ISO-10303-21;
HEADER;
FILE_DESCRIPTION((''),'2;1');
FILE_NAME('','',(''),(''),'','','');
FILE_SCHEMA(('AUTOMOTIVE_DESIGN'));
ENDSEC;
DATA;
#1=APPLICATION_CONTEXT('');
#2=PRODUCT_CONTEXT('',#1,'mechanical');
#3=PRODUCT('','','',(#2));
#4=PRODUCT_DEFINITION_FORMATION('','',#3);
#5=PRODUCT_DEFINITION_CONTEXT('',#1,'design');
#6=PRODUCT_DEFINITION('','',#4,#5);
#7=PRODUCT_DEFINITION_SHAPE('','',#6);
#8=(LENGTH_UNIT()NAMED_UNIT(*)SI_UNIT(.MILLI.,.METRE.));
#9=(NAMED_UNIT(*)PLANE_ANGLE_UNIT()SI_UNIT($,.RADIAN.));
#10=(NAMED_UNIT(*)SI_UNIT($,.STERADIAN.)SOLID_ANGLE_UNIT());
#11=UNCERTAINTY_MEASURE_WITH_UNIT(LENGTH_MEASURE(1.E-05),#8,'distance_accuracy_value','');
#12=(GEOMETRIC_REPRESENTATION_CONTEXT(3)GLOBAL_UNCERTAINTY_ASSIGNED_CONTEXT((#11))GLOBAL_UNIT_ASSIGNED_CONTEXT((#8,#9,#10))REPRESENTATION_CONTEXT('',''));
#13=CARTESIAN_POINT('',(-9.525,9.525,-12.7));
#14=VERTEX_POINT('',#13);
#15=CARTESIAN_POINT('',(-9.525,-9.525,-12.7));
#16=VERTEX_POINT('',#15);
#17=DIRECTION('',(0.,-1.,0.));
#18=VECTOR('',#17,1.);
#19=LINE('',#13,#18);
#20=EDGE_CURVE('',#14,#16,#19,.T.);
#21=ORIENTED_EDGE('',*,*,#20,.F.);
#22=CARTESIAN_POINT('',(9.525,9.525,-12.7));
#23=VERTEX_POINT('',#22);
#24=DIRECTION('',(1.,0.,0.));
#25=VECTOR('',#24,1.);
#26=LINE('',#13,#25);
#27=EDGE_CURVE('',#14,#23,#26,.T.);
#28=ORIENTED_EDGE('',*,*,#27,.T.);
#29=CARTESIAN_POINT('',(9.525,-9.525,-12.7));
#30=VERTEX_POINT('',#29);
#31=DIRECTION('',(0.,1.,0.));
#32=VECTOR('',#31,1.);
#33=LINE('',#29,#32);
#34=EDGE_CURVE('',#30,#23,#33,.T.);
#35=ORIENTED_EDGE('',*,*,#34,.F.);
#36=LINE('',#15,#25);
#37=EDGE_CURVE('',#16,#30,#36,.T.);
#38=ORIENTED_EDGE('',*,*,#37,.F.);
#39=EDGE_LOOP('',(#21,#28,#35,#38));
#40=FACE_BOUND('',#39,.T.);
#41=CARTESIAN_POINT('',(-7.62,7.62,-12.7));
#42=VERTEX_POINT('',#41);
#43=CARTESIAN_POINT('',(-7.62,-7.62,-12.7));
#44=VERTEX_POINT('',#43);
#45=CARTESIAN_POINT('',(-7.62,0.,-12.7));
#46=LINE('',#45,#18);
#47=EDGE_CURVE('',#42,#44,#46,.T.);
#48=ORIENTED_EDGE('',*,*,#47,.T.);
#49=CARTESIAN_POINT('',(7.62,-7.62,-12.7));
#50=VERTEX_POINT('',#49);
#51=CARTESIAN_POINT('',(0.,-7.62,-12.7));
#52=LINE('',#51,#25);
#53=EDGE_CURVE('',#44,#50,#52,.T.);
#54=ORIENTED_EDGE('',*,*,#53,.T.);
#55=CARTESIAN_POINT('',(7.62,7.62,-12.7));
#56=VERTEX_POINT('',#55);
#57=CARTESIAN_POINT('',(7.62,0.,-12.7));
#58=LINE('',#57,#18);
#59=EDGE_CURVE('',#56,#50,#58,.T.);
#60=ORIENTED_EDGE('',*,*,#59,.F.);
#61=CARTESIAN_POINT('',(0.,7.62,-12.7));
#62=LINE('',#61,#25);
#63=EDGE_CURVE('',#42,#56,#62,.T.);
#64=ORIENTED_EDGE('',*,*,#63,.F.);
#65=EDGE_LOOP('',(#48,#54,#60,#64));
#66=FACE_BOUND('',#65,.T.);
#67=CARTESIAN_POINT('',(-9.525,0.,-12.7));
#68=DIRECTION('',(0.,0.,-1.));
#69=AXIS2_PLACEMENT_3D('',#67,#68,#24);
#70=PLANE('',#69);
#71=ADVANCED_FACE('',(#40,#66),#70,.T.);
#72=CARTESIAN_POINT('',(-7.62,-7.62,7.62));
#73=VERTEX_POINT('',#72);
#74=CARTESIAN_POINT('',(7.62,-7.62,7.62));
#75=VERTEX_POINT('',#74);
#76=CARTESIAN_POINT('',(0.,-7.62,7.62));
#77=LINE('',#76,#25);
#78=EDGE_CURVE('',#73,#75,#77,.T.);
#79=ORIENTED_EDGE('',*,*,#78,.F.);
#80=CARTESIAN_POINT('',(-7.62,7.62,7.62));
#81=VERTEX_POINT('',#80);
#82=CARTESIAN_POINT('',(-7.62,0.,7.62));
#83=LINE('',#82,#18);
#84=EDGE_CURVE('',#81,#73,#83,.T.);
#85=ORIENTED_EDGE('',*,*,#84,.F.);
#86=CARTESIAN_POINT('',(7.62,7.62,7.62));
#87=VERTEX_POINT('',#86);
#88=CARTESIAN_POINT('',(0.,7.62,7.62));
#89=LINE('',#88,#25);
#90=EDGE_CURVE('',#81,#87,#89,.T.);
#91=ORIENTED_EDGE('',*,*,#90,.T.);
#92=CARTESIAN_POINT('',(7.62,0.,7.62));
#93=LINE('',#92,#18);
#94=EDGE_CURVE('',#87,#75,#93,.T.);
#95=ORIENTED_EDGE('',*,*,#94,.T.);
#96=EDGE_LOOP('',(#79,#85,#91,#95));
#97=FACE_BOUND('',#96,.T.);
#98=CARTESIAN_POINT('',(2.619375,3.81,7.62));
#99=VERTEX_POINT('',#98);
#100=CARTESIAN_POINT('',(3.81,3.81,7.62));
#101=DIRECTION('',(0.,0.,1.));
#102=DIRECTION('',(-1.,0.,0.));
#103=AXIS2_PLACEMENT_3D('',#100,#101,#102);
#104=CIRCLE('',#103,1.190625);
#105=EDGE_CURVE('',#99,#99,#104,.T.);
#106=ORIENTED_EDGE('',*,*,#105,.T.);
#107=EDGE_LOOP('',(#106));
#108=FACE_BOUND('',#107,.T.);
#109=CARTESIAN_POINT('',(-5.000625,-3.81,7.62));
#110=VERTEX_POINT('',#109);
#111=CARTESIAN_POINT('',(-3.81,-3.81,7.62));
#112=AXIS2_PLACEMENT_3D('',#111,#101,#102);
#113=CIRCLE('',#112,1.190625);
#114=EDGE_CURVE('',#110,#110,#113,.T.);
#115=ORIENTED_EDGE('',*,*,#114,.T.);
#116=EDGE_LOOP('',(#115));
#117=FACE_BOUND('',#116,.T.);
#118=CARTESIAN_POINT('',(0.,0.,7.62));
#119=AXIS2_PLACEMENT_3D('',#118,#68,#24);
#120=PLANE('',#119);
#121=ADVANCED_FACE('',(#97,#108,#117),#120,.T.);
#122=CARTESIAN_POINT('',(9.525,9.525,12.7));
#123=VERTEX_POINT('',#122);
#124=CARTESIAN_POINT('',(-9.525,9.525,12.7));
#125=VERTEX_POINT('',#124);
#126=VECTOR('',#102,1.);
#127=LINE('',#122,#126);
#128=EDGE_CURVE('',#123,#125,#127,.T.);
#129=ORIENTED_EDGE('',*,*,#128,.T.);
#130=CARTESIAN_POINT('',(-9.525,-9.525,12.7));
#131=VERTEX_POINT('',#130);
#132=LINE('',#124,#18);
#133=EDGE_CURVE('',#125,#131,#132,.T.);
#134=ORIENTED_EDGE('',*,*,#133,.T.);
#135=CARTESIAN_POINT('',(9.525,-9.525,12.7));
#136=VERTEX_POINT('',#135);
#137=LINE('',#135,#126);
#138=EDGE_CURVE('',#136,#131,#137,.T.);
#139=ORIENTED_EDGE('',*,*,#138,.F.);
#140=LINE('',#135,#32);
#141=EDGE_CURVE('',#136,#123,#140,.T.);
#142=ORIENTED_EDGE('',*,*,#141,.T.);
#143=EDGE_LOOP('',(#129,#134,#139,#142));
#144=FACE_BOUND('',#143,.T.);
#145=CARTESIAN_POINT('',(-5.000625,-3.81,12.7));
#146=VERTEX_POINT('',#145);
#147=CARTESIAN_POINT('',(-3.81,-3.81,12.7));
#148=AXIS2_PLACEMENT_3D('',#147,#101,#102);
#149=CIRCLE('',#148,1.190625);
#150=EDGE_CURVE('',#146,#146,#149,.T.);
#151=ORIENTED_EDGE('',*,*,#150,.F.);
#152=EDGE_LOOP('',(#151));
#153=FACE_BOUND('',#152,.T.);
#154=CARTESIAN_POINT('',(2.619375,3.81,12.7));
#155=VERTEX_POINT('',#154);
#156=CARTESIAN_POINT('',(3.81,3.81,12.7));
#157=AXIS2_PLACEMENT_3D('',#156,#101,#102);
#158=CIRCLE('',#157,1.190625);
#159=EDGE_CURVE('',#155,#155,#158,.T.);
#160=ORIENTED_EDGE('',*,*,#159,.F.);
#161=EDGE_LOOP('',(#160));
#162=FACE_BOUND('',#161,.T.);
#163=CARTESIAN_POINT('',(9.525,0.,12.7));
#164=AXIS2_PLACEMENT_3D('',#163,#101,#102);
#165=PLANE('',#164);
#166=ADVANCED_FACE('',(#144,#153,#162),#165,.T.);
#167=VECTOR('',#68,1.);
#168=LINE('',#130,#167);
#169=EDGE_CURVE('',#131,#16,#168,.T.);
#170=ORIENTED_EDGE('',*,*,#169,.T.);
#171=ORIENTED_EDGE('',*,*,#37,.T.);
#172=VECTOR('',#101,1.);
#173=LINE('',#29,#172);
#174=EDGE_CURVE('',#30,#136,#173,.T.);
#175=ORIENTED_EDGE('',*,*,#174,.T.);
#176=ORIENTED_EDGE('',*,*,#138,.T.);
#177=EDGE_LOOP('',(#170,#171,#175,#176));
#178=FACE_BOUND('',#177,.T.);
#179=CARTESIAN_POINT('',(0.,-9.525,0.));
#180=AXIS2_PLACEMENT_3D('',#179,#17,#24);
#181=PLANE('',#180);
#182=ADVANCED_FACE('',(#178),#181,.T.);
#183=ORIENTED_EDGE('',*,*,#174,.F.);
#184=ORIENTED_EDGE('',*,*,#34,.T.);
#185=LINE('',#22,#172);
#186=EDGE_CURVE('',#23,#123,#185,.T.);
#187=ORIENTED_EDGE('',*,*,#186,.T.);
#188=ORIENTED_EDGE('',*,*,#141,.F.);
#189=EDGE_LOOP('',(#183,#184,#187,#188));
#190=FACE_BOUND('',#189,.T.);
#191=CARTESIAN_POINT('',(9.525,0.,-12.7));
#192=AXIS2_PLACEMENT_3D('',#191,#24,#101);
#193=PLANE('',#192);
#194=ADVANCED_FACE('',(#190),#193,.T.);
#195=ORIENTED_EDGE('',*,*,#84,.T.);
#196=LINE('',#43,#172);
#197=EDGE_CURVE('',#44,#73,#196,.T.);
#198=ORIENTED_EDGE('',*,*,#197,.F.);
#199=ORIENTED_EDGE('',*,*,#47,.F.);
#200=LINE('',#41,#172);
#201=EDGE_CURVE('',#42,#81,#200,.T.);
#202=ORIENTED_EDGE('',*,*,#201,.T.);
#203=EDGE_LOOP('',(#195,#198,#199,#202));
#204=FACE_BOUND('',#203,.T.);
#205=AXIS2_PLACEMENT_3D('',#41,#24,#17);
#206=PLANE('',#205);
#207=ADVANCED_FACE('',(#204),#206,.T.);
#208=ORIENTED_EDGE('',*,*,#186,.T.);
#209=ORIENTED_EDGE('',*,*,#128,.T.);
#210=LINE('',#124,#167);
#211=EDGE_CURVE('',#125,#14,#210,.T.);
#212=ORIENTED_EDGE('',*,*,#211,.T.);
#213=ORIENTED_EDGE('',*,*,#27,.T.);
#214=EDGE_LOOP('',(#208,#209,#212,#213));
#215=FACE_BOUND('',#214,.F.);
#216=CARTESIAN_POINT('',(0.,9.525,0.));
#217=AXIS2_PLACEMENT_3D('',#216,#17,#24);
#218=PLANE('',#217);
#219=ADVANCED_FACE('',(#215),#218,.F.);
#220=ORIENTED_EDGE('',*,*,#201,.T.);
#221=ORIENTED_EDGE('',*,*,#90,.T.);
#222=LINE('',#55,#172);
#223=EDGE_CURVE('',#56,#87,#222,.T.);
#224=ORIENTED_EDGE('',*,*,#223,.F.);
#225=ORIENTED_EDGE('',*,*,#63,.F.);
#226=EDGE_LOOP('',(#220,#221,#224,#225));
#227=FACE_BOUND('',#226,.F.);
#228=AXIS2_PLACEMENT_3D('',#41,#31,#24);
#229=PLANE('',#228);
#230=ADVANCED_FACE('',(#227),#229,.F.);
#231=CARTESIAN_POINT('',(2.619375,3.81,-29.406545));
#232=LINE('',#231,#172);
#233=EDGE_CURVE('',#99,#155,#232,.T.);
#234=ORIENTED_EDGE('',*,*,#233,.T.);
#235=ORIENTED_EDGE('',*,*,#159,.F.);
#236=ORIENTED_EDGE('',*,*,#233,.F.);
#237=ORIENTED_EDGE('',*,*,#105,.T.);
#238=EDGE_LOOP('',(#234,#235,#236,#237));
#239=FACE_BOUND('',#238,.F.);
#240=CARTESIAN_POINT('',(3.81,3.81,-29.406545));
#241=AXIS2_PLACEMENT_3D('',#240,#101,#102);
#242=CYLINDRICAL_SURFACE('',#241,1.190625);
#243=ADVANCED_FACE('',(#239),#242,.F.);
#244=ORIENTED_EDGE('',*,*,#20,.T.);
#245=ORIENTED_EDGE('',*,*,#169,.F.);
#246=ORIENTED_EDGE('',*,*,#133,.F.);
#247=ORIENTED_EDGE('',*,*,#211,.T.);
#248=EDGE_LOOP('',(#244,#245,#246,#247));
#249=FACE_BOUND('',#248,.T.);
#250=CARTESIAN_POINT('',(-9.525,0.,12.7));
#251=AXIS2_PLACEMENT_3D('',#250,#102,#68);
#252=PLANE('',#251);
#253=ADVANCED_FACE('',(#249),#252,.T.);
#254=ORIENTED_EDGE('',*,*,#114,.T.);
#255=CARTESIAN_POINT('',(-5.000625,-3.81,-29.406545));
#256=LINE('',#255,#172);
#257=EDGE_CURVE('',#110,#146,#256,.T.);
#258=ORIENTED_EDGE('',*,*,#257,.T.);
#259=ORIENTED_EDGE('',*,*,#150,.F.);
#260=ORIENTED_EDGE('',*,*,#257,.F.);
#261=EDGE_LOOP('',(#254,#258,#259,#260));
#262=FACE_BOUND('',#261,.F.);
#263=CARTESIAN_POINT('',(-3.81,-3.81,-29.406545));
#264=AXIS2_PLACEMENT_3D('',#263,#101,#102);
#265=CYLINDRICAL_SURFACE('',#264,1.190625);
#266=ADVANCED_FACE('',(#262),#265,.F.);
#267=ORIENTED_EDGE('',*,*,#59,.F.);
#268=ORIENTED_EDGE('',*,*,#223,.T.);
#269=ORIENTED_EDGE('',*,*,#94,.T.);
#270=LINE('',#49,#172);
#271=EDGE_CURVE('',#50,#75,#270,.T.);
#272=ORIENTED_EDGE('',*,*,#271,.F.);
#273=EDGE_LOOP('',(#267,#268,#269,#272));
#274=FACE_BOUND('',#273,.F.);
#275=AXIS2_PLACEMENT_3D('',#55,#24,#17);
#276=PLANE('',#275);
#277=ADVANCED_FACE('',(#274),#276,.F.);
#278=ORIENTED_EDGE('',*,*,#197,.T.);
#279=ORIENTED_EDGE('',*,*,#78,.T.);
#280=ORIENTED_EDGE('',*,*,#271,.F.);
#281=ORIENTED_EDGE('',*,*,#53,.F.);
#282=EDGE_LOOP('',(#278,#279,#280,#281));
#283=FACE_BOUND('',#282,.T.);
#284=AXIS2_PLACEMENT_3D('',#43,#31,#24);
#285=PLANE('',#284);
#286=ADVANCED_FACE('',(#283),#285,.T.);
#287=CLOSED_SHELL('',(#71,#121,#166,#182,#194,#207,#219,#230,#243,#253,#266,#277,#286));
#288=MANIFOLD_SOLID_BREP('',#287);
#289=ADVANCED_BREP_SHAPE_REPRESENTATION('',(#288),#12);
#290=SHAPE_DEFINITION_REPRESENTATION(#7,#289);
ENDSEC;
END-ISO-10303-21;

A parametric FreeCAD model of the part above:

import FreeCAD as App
import Part
import Sketcher

V = App.Vector
Q = App.Units.Quantity

doc = App.newDocument("Part")
params = doc.addObject("Spreadsheet::Sheet", "Params")
for row, (alias, value) in enumerate([
    ("sketch1_height", "1 in"),
    ("sketch1_width", "0.75 in"),
    ("pad1_length", "0.75 in"),
    ("sketch2_width", "0.6 in"),
    ("pocket1_length", "0.8 in"),
    ("sketch3_diameter", "0.09375 in"),
    ("hole_diameter", "0.09375 in"),
], start=1):
    params.set(f"A{row}", alias)
    params.set(f"B{row}", "=" + value)
    params.setAlias(f"B{row}", alias)

body = doc.addObject("PartDesign::Body", "Body")

# Sketch on XZ plane
sketch1 = body.newObject("Sketcher::SketchObject", "Sketch")
sketch1.AttachmentSupport = (doc.getObject("XZ_Plane"), [""])
sketch1.MapMode = "FlatFace"
sketch1.addGeometry(Part.LineSegment(V(10, 13, 0), V(-10, 13, 0)), False)
sketch1.addGeometry(Part.LineSegment(V(-10, 13, 0), V(-10, -13, 0)), False)
sketch1.addGeometry(Part.LineSegment(V(-10, -13, 0), V(10, -13, 0)), False)
sketch1.addGeometry(Part.LineSegment(V(10, -13, 0), V(10, 13, 0)), False)
sketch1.addConstraint(Sketcher.Constraint("Coincident", 0, 2, 1, 1))
sketch1.addConstraint(Sketcher.Constraint("Coincident", 1, 2, 2, 1))
sketch1.addConstraint(Sketcher.Constraint("Coincident", 2, 2, 3, 1))
sketch1.addConstraint(Sketcher.Constraint("Coincident", 3, 2, 0, 1))
sketch1.addConstraint(Sketcher.Constraint("Horizontal", 0))
sketch1.addConstraint(Sketcher.Constraint("Vertical", 1))
sketch1.addConstraint(Sketcher.Constraint("Horizontal", 2))
sketch1.addConstraint(Sketcher.Constraint("Vertical", 3))
sketch1.addConstraint(Sketcher.Constraint("Symmetric", 0, 2, 2, 2, -1, 1))
sketch1.addConstraint(Sketcher.Constraint("DistanceY", 1, 2, 1, 1, Q("1 in")))
sketch1.addConstraint(Sketcher.Constraint("DistanceX", 0, 2, 0, 1, Q("0.75 in")))
sketch1.setExpression("Constraints[9]", "Params.sketch1_height")
sketch1.setExpression("Constraints[10]", "Params.sketch1_width")
pad1 = body.newObject("PartDesign::Pad", "Pad")
pad1.Profile = sketch1
pad1.setExpression("Length", "Params.pad1_length")
pad1.Midplane = True

# Sketch on XY plane
sketch2 = body.newObject("Sketcher::SketchObject", "Sketch001")
sketch2.AttachmentSupport = (doc.getObject("XY_Plane"), [""])
sketch2.MapMode = "FlatFace"
sketch2.AttachmentOffset = App.Placement(V(0, 0, -0.5 * 25.4), App.Rotation())
sketch2.addGeometry(Part.LineSegment(V(-8, -8, 0), V(-8, 8, 0)), False)
sketch2.addGeometry(Part.LineSegment(V(-8, 8, 0), V(8, 8, 0)), False)
sketch2.addGeometry(Part.LineSegment(V(8, 8, 0), V(8, -8, 0)), False)
sketch2.addGeometry(Part.LineSegment(V(8, -8, 0), V(-8, -8, 0)), False)
sketch2.addConstraint(Sketcher.Constraint("Coincident", 0, 2, 1, 1))
sketch2.addConstraint(Sketcher.Constraint("Coincident", 1, 2, 2, 1))
sketch2.addConstraint(Sketcher.Constraint("Coincident", 2, 2, 3, 1))
sketch2.addConstraint(Sketcher.Constraint("Coincident", 3, 2, 0, 1))
sketch2.addConstraint(Sketcher.Constraint("Vertical", 0))
sketch2.addConstraint(Sketcher.Constraint("Horizontal", 1))
sketch2.addConstraint(Sketcher.Constraint("Vertical", 2))
sketch2.addConstraint(Sketcher.Constraint("Horizontal", 3))
sketch2.addConstraint(Sketcher.Constraint("Symmetric", 0, 2, 2, 2, -1, 1))
sketch2.addConstraint(Sketcher.Constraint("Equal", 3, 0))
sketch2.addConstraint(Sketcher.Constraint("DistanceX", 1, 1, 1, 2, Q("0.6 in")))
sketch2.setExpression("Constraints[10]", "Params.sketch2_width")
pocket1 = body.newObject("PartDesign::Pocket", "Pocket")
pocket1.Profile = sketch2
pocket1.setExpression("Length", "Params.pocket1_length")
pocket1.Reversed = True

# Sketch on XY plane
sketch3 = body.newObject("Sketcher::SketchObject", "Sketch002")
sketch3.AttachmentSupport = (doc.getObject("XY_Plane"), [""])
sketch3.MapMode = "FlatFace"
sketch3.AttachmentOffset = App.Placement(V(0, 0, 0.3 * 25.4), App.Rotation())
sketch3.addGeometry(Part.Circle(V(-3.8, -3.8, 0), V(0, 0, 1), 1.2), False)
sketch3.addGeometry(Part.Circle(V(3.8, 3.8, 0), V(0, 0, 1), 1.2), False)
sketch3.addConstraint(Sketcher.Constraint("Equal", 0, 1))
sketch3.addConstraint(Sketcher.Constraint("Symmetric", 0, 3, 1, 3, -1, 1))
sketch3.addConstraint(Sketcher.Constraint("Diameter", 0, Q("0.09375 in")))
sketch3.addConstraint(Sketcher.Constraint("DistanceX", 0, 3, 1, 3, Q("0.3 in")))
sketch3.addConstraint(Sketcher.Constraint("DistanceY", 0, 3, 1, 3, Q("0.3 in")))
sketch3.setExpression("Constraints[2]", "Params.sketch3_diameter")
doc.recompute()
hole = body.newObject("PartDesign::Hole", "Hole")
hole.Profile = sketch3
hole.ThreadType = "None"
hole.setExpression("Diameter", "Params.hole_diameter")
hole.DepthType = "ThroughAll"
hole.Reversed = True

doc.recompute()
